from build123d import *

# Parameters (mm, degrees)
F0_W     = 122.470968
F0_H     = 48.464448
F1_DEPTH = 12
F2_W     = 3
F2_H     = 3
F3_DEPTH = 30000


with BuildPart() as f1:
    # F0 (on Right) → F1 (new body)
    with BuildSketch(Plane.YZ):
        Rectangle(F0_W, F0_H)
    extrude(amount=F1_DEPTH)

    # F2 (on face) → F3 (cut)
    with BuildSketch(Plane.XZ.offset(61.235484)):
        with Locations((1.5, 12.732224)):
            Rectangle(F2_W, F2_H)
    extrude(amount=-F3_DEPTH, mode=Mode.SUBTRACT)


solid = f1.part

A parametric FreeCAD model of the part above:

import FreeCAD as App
import Part
import Sketcher

V = App.Vector

doc = App.newDocument("Part")
params = doc.addObject("Spreadsheet::Sheet", "Params")
for row, (alias, value) in enumerate([
    ("pad1_length", "12 mm"),
    ("sketch2_width", "3 mm"),
    ("pocket1_length", "30000 mm"),
], start=1):
    params.set(f"A{row}", alias)
    params.set(f"B{row}", "=" + value)
    params.setAlias(f"B{row}", alias)

body = doc.addObject("PartDesign::Body", "Body")

sketch1 = body.newObject("Sketcher::SketchObject", "Sketch")
sketch1.AttachmentSupport = (doc.getObject("YZ_Plane"), [""])
sketch1.MapMode = "FlatFace"
sketch1.addGeometry([
    Part.LineSegment(V(-61, 24, 0), V(-61, -24, 0)),
    Part.LineSegment(V(-61, -24, 0), V(61, -24, 0)),
    Part.LineSegment(V(61, -24, 0), V(61, 24, 0)),
    Part.LineSegment(V(61, 24, 0), V(-61, 24, 0)),
], False)
sketch1.addConstraint([
    Sketcher.Constraint("Coincident", 0, 2, 1, 1),
    Sketcher.Constraint("Coincident", 1, 2, 2, 1),
    Sketcher.Constraint("Coincident", 2, 2, 3, 1),
    Sketcher.Constraint("Coincident", 3, 2, 0, 1),
    Sketcher.Constraint("Vertical", 0),
    Sketcher.Constraint("Horizontal", 1),
    Sketcher.Constraint("Vertical", 2),
    Sketcher.Constraint("Horizontal", 3),
    Sketcher.Constraint("Symmetric", 0, 2, 2, 2, -1, 1),
    Sketcher.Constraint("DistanceX", 1, 1, 1, 2, 122.470968),
    Sketcher.Constraint("DistanceY", 0, 2, 0, 1, 48.464448),
])
pad1 = body.newObject("PartDesign::Pad", "Pad")
pad1.Profile = sketch1
pad1.setExpression("Length", "Params.pad1_length")

sketch2 = body.newObject("Sketcher::SketchObject", "Sketch001")
sketch2.AttachmentSupport = (doc.getObject("XZ_Plane"), [""])
sketch2.MapMode = "FlatFace"
sketch2.AttachmentOffset = App.Placement(V(0, 0, 61.235484), App.Rotation())
sketch2.addGeometry([
    Part.LineSegment(V(0, 14.2, 0), V(0, 11.2, 0)),
    Part.LineSegment(V(0, 11.2, 0), V(3, 11.2, 0)),
    Part.LineSegment(V(3, 11.2, 0), V(3, 14.2, 0)),
    Part.LineSegment(V(3, 14.2, 0), V(0, 14.2, 0)),
], False)
sketch2.addConstraint([
    Sketcher.Constraint("Coincident", 0, 2, 1, 1),
    Sketcher.Constraint("Coincident", 1, 2, 2, 1),
    Sketcher.Constraint("Coincident", 2, 2, 3, 1),
    Sketcher.Constraint("Coincident", 3, 2, 0, 1),
    Sketcher.Constraint("Vertical", 0),
    Sketcher.Constraint("Horizontal", 1),
    Sketcher.Constraint("Vertical", 2),
    Sketcher.Constraint("Horizontal", 3),
    Sketcher.Constraint("PointOnObject", 0, 2, -2),
    Sketcher.Constraint("Equal", 3, 0),
    Sketcher.Constraint("DistanceX", 1, 1, 1, 2, 3.0),
    Sketcher.Constraint("DistanceY", -1, 1, 0, 2, 11.232224),
])
sketch2.setExpression("Constraints[10]", "Params.sketch2_width")
pocket1 = body.newObject("PartDesign::Pocket", "Pocket")
pocket1.Profile = sketch2
pocket1.setExpression("Length", "Params.pocket1_length")

doc.recompute()
